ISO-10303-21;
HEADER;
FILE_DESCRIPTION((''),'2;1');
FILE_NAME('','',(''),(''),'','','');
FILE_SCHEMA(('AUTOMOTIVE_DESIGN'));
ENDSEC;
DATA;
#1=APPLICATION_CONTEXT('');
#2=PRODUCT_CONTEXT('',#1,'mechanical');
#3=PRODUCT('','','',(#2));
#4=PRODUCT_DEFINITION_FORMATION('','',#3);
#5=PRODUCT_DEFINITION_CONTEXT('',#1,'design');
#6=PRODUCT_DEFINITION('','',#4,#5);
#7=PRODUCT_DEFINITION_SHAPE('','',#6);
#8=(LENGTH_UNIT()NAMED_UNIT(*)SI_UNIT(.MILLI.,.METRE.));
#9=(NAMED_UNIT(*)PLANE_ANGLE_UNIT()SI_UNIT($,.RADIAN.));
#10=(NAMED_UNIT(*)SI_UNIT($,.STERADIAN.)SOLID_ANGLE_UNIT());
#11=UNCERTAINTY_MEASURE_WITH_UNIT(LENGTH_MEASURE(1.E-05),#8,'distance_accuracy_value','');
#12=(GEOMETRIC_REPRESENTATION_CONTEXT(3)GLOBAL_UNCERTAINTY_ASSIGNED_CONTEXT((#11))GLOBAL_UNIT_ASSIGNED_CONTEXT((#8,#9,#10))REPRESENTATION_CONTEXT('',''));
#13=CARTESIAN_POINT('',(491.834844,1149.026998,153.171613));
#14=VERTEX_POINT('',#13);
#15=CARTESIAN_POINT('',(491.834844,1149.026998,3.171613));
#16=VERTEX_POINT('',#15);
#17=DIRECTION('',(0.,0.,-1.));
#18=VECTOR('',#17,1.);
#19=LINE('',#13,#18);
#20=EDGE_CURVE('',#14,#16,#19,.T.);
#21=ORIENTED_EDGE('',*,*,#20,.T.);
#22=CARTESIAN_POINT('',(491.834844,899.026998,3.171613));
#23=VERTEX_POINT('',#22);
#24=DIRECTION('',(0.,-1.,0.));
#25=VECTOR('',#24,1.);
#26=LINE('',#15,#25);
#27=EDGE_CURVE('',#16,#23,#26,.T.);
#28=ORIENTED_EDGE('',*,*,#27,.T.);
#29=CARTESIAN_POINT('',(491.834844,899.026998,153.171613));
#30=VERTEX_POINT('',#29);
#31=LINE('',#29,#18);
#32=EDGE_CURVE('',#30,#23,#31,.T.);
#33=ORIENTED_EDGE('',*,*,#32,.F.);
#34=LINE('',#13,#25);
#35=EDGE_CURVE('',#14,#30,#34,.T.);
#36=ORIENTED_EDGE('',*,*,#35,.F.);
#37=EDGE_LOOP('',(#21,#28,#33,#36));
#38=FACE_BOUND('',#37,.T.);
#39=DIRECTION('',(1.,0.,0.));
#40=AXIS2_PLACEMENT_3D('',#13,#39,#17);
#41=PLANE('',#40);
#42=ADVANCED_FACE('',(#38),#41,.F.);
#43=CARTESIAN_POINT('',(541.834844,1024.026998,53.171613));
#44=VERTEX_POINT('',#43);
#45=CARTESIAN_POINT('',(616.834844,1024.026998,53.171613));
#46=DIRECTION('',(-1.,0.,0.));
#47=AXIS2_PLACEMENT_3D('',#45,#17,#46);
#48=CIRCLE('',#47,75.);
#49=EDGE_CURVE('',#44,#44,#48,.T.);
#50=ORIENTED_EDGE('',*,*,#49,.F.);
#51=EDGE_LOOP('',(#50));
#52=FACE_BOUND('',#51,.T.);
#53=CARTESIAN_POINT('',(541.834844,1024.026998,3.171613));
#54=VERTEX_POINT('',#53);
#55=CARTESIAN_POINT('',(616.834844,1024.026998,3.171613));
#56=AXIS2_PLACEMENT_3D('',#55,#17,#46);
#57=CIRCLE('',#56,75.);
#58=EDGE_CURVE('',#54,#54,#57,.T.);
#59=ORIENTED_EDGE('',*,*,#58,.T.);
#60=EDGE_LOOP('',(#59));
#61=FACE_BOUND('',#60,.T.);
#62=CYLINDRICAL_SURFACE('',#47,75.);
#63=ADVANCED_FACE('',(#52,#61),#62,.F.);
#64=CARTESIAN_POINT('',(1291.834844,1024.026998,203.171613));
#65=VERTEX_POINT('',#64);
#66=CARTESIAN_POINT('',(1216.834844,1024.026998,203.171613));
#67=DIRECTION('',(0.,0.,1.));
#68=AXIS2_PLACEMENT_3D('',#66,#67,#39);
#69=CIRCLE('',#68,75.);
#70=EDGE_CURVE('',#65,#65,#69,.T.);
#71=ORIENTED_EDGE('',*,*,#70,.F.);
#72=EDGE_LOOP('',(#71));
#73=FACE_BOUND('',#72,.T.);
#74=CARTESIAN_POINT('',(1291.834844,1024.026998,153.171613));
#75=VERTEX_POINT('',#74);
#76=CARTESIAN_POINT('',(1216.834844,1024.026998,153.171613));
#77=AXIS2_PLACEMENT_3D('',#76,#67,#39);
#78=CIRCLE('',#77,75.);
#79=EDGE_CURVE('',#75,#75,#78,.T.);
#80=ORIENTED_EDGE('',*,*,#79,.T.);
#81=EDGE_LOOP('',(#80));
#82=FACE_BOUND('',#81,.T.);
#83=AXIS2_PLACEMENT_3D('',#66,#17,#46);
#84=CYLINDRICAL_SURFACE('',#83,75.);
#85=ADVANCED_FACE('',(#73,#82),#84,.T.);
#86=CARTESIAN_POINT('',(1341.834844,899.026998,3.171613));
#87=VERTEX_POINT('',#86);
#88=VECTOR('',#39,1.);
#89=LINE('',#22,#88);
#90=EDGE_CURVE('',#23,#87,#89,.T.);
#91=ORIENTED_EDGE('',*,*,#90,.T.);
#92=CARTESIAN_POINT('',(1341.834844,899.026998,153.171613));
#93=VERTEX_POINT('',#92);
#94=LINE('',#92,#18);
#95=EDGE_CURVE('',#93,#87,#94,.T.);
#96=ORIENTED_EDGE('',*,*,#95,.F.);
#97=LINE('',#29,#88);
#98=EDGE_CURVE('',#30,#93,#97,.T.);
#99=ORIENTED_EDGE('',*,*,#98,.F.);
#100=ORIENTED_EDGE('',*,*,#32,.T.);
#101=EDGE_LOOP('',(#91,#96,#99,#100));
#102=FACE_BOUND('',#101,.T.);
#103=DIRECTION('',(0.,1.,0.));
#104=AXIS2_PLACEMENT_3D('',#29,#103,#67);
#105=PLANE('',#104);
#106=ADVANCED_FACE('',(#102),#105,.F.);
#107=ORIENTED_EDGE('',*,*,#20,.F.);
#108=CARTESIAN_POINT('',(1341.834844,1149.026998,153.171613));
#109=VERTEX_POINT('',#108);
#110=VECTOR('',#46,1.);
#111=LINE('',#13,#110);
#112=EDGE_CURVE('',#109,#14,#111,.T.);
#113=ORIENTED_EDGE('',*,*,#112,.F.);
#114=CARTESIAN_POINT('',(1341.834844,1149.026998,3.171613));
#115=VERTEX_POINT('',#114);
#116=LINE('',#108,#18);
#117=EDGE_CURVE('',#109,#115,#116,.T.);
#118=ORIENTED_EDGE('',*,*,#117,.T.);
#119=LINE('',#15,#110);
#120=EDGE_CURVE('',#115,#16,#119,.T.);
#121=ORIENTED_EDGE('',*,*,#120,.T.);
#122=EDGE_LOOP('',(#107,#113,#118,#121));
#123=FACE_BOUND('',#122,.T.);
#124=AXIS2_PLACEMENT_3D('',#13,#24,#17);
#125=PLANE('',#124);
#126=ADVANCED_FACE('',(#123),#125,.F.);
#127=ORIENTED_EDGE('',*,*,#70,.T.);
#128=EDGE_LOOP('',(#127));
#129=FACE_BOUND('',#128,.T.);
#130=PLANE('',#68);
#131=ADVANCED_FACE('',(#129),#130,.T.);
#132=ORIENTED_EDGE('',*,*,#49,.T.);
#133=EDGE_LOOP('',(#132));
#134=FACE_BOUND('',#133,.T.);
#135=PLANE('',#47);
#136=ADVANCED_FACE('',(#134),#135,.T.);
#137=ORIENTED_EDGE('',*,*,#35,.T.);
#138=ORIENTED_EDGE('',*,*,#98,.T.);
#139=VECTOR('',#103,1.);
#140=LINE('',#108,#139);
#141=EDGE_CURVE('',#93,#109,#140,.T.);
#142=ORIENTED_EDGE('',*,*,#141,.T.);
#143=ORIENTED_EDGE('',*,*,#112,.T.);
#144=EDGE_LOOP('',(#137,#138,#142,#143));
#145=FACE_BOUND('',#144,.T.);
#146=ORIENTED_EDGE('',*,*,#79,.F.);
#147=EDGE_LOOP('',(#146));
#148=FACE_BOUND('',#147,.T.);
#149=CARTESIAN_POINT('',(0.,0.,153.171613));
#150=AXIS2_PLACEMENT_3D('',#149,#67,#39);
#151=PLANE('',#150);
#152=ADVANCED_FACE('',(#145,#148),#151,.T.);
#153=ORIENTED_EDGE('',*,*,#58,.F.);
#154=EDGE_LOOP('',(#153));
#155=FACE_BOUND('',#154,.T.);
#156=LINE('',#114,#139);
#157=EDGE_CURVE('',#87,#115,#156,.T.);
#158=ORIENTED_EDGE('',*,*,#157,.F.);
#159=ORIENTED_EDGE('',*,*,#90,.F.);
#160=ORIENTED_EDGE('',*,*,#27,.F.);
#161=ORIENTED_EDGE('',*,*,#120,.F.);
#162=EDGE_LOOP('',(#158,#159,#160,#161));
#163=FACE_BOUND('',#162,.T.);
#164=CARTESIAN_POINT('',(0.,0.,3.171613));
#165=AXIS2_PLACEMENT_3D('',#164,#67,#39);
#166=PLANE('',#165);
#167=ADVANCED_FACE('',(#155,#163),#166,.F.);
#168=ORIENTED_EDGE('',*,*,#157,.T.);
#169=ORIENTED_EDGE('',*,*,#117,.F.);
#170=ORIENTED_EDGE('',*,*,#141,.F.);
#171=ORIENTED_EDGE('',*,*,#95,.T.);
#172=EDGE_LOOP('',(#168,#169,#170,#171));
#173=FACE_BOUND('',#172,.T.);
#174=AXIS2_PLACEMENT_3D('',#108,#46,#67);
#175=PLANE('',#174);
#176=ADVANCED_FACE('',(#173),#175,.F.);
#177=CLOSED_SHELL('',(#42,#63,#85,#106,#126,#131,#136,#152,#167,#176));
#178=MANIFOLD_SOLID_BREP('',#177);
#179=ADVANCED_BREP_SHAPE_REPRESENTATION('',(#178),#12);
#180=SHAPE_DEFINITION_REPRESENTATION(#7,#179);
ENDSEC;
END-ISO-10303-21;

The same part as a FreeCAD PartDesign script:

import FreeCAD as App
import Part
import Sketcher
Q = App.Units.Quantity


def add_polygon(sketch, points):
    """Adds a closed chain of lines whose ends are joined by coincident constraints."""
    first, n = sketch.GeometryCount, len(points)
    for a, b in zip(points, points[1:] + points[:1]):
        sketch.addGeometry(Part.LineSegment(App.Vector(*a, 0), App.Vector(*b, 0)), False)
    for i in range(n):
        sketch.addConstraint(Sketcher.Constraint("Coincident", first + i, 2, first + (i + 1) % n, 1))

doc = App.newDocument("Part")
body = doc.addObject("PartDesign::Body", "Body")

# Sketch on XY plane
sketch1 = body.newObject("Sketcher::SketchObject", "Sketch")
sketch1.AttachmentSupport = (doc.getObject("XY_Plane"), [""])
sketch1.MapMode = "FlatFace"
sketch1.AttachmentOffset = App.Placement(App.Vector(0, 0, 3.171613), App.Rotation())
add_polygon(sketch1, [(492, 1149), (492, 899), (1342, 899), (1342, 1149)])  # lines 0-3
sketch1.addConstraint([
    Sketcher.Constraint("Vertical", 0),
    Sketcher.Constraint("Horizontal", 1),
    Sketcher.Constraint("Vertical", 2),
    Sketcher.Constraint("Horizontal", 3),
    Sketcher.Constraint("DistanceX", 1, 1, 1, 2, Q("850 mm")),
    Sketcher.Constraint("DistanceY", 0, 2, 0, 1, Q("250 mm")),
    Sketcher.Constraint("DistanceX", -1, 1, 0, 2, Q("491.834844 mm")),
    Sketcher.Constraint("DistanceY", -1, 1, 0, 2, Q("899.026998 mm")),
])
pad1 = body.newObject("PartDesign::Pad", "Pad")
pad1.Profile = sketch1
pad1.Length = 150

# Sketch on XY plane
sketch2 = body.newObject("Sketcher::SketchObject", "Sketch001")
sketch2.AttachmentSupport = (doc.getObject("XY_Plane"), [""])
sketch2.MapMode = "FlatFace"
sketch2.AttachmentOffset = App.Placement(App.Vector(0, 0, 3.171613), App.Rotation())
sketch2.addGeometry(Part.Circle(App.Vector(617, 1024, 0), App.Vector(0, 0, 1), 75), False)
sketch2.addConstraint([
    Sketcher.Constraint("Diameter", 0, Q("150 mm")),
    Sketcher.Constraint("DistanceX", -1, 1, 0, 3, Q("616.834844 mm")),
    Sketcher.Constraint("DistanceY", -1, 1, 0, 3, Q("1024.026998 mm")),
])
pocket1 = body.newObject("PartDesign::Pocket", "Pocket")
pocket1.Profile = sketch2
pocket1.Length = 50
pocket1.Reversed = True

# Sketch on XY plane
sketch3 = body.newObject("Sketcher::SketchObject", "Sketch002")
sketch3.AttachmentSupport = (doc.getObject("XY_Plane"), [""])
sketch3.MapMode = "FlatFace"
sketch3.AttachmentOffset = App.Placement(App.Vector(0, 0, 153.171613), App.Rotation())
sketch3.addGeometry(Part.Circle(App.Vector(1217, 1024, 0), App.Vector(0, 0, 1), 75), False)
sketch3.addConstraint([
    Sketcher.Constraint("Diameter", 0, Q("150 mm")),
    Sketcher.Constraint("DistanceX", -1, 1, 0, 3, Q("1216.834844 mm")),
    Sketcher.Constraint("DistanceY", -1, 1, 0, 3, Q("1024.026998 mm")),
])
pad2 = body.newObject("PartDesign::Pad", "Pad001")
pad2.Profile = sketch3
pad2.Length = 50

doc.recompute()
